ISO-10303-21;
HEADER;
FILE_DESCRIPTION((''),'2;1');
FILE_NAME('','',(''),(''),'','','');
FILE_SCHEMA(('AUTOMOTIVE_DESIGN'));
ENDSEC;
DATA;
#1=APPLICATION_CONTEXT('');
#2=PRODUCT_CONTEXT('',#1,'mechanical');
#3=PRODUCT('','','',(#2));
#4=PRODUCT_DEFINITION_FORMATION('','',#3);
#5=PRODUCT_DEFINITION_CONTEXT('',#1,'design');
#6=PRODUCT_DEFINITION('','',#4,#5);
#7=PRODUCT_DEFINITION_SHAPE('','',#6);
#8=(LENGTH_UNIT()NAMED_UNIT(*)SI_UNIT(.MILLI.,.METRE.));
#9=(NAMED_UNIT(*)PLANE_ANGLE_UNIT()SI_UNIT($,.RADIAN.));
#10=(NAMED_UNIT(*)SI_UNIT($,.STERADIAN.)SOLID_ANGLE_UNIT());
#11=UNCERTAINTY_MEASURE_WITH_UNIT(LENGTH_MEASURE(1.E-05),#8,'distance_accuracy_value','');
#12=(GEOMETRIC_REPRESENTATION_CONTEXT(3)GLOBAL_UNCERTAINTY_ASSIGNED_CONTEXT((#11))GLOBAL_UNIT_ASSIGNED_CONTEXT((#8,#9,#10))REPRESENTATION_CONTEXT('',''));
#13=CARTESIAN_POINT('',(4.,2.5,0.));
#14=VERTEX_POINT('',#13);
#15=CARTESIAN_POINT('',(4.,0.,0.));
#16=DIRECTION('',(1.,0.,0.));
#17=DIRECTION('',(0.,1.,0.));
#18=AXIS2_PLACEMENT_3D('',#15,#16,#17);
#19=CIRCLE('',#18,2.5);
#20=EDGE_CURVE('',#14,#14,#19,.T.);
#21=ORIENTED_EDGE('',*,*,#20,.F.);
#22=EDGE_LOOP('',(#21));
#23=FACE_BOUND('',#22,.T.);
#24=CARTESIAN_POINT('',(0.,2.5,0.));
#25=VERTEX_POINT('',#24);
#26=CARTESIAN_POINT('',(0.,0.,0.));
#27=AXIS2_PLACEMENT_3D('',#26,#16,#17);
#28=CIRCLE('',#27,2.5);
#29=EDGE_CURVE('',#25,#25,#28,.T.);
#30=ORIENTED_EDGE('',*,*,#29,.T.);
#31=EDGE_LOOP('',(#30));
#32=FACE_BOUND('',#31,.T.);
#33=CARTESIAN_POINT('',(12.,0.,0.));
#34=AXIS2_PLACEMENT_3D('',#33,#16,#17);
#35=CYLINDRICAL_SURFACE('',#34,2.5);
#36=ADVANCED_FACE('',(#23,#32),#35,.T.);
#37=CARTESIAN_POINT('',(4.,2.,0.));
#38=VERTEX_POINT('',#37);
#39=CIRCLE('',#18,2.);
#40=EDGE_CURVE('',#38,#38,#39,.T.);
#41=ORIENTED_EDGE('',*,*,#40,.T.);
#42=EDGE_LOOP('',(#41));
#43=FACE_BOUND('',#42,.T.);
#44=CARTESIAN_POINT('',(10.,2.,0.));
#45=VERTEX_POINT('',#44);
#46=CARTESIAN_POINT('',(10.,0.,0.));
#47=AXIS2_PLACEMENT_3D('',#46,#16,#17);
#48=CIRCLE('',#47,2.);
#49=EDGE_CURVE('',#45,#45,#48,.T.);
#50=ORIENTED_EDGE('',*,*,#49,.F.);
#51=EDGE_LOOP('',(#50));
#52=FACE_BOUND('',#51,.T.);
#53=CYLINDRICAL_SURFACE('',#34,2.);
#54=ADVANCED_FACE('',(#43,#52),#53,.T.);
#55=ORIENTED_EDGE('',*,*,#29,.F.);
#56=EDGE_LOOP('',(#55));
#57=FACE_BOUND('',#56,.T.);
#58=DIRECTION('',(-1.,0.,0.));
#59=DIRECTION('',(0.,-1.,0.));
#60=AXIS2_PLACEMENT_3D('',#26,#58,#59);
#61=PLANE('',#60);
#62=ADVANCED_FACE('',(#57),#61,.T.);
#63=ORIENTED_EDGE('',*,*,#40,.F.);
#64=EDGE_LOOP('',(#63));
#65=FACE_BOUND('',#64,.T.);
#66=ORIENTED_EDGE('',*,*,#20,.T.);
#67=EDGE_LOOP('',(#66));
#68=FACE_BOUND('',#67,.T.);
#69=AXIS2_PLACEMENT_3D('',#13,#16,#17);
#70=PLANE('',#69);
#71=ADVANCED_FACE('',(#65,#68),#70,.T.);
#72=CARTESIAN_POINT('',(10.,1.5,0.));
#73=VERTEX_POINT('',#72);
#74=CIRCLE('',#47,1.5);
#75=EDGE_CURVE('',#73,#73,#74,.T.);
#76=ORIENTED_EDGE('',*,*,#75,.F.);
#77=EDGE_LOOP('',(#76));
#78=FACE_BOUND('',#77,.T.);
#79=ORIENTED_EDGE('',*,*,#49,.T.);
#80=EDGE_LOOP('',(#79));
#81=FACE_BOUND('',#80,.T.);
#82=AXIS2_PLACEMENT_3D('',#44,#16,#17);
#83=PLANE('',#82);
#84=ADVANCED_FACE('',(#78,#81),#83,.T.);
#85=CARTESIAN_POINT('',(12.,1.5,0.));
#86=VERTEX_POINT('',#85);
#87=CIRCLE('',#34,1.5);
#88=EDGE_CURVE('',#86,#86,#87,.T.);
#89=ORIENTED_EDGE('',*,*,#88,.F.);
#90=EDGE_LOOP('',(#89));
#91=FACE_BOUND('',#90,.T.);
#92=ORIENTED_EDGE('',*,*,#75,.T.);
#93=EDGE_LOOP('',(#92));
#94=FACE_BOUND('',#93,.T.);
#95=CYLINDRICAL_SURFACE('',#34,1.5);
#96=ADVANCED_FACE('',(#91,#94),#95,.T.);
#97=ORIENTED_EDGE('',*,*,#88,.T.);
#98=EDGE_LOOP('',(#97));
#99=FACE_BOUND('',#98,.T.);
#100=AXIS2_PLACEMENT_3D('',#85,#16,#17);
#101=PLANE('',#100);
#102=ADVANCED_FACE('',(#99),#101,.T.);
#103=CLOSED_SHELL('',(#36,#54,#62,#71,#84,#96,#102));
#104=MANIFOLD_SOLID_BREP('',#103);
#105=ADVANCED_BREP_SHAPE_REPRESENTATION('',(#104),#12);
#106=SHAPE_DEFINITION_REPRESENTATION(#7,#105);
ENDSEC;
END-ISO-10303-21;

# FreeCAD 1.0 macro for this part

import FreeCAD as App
import Part
import Sketcher


def add_polygon(sketch, points):
    """Adds a closed chain of lines whose ends are joined by coincident constraints."""
    first, n = sketch.GeometryCount, len(points)
    for a, b in zip(points, points[1:] + points[:1]):
        sketch.addGeometry(Part.LineSegment(App.Vector(*a, 0), App.Vector(*b, 0)), False)
    for i in range(n):
        sketch.addConstraint(Sketcher.Constraint("Coincident", first + i, 2, first + (i + 1) % n, 1))

doc = App.newDocument("Part")
params = doc.addObject("Spreadsheet::Sheet", "Params")
for row, (alias, value) in enumerate([
    ("sketch1_width", "12 mm"),
    ("sketch1_width2", "2 mm"),
    ("sketch1_width3", "6 mm"),
    ("sketch1_height", "2.5 mm"),
    ("sketch1_height2", "1.5 mm"),
    ("revolution_angle", "360 deg"),
], start=1):
    params.set(f"A{row}", alias)
    params.set(f"B{row}", "=" + value)
    params.setAlias(f"B{row}", alias)

body = doc.addObject("PartDesign::Body", "Body")

# Sketch on XY plane
sketch1 = doc.addObject("Sketcher::SketchObject", "Sketch")
body.addObject(sketch1)
sketch1.AttachmentSupport = (doc.XY_Plane, [""])
sketch1.MapMode = "FlatFace"
add_polygon(sketch1, [(0, 2.5), (0, 0), (12, 0), (12, 1.5), (10, 1.5), (10, 2), (4, 2), (4, 2.5)])  # lines 0-7
sketch1.addConstraint(Sketcher.Constraint("Vertical", 0))
sketch1.addConstraint(Sketcher.Constraint("Horizontal", 1))
sketch1.addConstraint(Sketcher.Constraint("Vertical", 2))
sketch1.addConstraint(Sketcher.Constraint("Horizontal", 3))
sketch1.addConstraint(Sketcher.Constraint("Vertical", 4))
sketch1.addConstraint(Sketcher.Constraint("Horizontal", 5))
sketch1.addConstraint(Sketcher.Constraint("Vertical", 6))
sketch1.addConstraint(Sketcher.Constraint("Horizontal", 7))
sketch1.addConstraint(Sketcher.Constraint("Coincident", 0, 2, -1, 1))
sketch1.addConstraint(Sketcher.Constraint("Equal", 4, 6))
sketch1.addConstraint(Sketcher.Constraint("DistanceX", 1, 1, 1, 2, 12.0))
sketch1.addConstraint(Sketcher.Constraint("DistanceX", 3, 2, 3, 1, 2.0))
sketch1.addConstraint(Sketcher.Constraint("DistanceX", 5, 2, 5, 1, 6.0))
sketch1.addConstraint(Sketcher.Constraint("DistanceY", 0, 2, 0, 1, 2.5))
sketch1.addConstraint(Sketcher.Constraint("DistanceY", 2, 1, 2, 2, 1.5))
sketch1.setExpression("Constraints[18]", "Params.sketch1_width")
sketch1.setExpression("Constraints[19]", "Params.sketch1_width2")
sketch1.setExpression("Constraints[20]", "Params.sketch1_width3")
sketch1.setExpression("Constraints[21]", "Params.sketch1_height")
sketch1.setExpression("Constraints[22]", "Params.sketch1_height2")
revolution = doc.addObject("PartDesign::Revolution", "Revolution")
body.addObject(revolution)
revolution.Profile = sketch1
revolution.ReferenceAxis = (sketch1, ["H_Axis"])
revolution.setExpression("Angle", "Params.revolution_angle")

doc.recompute()
